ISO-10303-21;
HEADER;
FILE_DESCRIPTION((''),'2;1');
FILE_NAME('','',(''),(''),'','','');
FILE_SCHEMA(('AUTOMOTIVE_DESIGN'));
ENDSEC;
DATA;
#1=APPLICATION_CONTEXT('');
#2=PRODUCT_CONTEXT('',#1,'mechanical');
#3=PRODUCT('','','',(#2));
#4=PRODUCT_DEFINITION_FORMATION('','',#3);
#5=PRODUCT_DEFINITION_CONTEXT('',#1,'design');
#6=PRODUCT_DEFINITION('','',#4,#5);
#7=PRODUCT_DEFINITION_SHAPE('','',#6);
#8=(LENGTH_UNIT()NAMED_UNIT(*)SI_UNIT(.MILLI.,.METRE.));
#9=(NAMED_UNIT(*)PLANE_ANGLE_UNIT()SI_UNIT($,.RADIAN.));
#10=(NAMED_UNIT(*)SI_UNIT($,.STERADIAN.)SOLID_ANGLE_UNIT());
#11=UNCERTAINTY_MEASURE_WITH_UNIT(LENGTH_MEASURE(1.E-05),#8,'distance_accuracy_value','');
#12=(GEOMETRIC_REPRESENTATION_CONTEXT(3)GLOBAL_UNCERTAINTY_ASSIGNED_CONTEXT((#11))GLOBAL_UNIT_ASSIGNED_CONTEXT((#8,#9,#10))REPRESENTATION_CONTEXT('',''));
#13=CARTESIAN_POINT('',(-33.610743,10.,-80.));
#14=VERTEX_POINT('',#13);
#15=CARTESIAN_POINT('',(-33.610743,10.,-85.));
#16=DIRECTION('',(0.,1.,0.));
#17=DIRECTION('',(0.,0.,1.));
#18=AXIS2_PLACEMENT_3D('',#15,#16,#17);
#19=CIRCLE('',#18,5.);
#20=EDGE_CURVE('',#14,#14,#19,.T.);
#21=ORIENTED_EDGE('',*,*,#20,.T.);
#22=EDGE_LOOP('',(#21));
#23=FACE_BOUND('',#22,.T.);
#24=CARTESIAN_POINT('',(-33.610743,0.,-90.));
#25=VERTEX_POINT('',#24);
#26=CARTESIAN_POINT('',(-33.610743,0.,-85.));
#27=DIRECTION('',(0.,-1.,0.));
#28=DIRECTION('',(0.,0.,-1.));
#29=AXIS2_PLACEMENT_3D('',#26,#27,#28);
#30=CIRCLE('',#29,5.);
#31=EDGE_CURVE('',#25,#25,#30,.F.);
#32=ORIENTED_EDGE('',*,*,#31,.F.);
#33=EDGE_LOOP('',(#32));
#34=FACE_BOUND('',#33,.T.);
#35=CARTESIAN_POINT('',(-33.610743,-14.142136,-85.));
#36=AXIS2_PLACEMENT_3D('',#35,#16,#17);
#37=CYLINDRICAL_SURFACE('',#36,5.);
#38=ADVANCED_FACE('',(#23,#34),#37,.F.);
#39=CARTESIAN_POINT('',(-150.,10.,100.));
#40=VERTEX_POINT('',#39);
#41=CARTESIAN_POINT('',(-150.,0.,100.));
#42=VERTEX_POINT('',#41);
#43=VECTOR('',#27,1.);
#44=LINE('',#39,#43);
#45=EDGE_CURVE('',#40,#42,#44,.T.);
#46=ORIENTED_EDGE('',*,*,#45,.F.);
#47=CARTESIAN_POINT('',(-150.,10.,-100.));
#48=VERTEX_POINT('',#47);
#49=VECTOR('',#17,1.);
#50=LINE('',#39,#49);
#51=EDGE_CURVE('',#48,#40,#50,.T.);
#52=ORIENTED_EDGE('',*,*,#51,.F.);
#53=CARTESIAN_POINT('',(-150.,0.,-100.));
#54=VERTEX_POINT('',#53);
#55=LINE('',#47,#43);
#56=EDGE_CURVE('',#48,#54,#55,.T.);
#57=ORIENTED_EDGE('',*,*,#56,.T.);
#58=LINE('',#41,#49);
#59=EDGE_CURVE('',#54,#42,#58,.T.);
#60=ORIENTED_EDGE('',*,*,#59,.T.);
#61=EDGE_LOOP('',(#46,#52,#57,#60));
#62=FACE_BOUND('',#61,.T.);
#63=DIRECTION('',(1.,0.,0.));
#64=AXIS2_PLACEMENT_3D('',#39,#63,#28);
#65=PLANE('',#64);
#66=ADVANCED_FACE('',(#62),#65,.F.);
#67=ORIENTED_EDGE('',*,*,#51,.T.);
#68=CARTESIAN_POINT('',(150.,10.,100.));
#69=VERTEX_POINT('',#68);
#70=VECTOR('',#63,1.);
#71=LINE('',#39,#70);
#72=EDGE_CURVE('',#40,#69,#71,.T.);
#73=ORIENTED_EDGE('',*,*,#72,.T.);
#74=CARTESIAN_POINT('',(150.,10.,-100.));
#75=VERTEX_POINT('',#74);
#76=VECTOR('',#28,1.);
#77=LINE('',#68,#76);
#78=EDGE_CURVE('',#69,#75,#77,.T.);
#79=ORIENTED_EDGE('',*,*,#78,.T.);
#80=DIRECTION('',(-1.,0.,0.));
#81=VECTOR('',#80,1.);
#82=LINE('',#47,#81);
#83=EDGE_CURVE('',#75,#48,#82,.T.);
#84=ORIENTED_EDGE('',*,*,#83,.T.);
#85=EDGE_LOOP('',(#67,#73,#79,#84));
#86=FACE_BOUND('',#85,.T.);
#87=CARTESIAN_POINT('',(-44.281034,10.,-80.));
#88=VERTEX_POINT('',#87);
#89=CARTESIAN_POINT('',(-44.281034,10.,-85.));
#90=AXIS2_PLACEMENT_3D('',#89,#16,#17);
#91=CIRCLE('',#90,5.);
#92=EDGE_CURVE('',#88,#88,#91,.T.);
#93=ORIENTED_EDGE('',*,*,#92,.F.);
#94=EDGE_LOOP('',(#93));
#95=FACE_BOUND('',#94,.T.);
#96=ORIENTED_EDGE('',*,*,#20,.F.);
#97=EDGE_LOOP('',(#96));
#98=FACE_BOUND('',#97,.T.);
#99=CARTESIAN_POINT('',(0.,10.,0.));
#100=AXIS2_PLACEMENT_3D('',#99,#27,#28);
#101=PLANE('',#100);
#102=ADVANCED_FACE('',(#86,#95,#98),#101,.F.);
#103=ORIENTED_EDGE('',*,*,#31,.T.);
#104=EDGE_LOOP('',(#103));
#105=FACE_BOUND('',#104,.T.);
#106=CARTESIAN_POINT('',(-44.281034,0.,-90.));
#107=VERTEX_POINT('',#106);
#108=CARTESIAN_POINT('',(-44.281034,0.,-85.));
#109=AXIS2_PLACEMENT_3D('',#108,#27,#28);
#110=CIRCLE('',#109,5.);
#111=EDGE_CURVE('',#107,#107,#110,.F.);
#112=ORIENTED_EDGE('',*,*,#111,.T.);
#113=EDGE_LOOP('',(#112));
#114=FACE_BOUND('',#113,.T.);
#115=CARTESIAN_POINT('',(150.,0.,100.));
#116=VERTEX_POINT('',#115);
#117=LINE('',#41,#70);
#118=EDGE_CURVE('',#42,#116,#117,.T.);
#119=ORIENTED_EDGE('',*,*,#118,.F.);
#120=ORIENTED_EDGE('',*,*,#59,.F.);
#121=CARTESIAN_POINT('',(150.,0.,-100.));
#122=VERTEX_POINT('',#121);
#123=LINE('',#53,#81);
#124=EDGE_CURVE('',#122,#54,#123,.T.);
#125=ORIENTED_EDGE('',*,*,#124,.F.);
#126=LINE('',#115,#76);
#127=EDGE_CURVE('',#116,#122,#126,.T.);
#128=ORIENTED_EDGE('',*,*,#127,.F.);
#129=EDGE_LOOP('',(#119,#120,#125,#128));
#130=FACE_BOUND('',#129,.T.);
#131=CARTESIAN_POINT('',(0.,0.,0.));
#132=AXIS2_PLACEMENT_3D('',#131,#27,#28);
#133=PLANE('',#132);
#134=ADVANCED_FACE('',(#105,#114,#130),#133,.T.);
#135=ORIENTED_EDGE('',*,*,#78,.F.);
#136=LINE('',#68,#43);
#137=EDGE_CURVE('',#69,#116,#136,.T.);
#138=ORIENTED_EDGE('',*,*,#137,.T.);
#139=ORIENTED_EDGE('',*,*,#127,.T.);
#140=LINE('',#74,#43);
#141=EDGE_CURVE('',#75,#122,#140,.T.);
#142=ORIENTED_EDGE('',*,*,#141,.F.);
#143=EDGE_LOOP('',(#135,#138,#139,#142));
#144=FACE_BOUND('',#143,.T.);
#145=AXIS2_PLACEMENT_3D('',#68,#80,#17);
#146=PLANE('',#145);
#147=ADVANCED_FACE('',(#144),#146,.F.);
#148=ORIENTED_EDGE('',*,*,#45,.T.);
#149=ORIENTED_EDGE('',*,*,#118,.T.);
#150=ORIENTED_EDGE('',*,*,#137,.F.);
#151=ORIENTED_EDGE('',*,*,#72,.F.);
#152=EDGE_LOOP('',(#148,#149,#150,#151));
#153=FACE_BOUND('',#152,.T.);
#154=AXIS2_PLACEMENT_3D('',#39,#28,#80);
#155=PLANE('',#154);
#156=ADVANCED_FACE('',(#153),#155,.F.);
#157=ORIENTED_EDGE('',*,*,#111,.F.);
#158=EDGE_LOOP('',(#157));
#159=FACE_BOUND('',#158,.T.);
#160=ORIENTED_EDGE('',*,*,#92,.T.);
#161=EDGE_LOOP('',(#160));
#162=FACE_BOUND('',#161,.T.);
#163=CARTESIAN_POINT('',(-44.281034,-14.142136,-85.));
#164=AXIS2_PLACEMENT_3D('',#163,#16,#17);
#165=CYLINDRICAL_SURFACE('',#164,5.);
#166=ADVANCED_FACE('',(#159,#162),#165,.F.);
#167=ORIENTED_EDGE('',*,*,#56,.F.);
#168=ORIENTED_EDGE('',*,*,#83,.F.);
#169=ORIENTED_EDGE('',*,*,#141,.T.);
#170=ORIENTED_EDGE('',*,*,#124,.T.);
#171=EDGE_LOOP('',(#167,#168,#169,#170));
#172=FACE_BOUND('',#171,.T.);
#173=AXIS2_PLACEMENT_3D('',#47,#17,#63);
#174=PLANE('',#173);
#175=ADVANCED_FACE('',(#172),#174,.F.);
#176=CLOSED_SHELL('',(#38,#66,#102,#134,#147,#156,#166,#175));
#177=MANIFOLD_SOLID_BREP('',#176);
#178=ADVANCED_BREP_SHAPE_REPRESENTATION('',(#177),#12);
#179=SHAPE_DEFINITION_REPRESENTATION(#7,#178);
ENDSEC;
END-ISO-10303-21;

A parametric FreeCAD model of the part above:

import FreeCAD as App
import Part
import Sketcher
from FreeCAD import Vector


def add_polygon(sketch, points):
    """Adds a closed chain of lines whose ends are joined by coincident constraints."""
    first, n = sketch.GeometryCount, len(points)
    for a, b in zip(points, points[1:] + points[:1]):
        sketch.addGeometry(Part.LineSegment(App.Vector(*a, 0), App.Vector(*b, 0)), False)
    for i in range(n):
        sketch.addConstraint(Sketcher.Constraint("Coincident", first + i, 2, first + (i + 1) % n, 1))

doc = App.newDocument("Part")
body = doc.addObject("PartDesign::Body", "Body")

sketch1 = body.newObject("Sketcher::SketchObject", "Sketch")
sketch1.AttachmentSupport = (doc.getObject("XZ_Plane"), [""])
sketch1.MapMode = "FlatFace"
add_polygon(sketch1, [(-150, -100), (-150, 100), (150, 100), (150, -100)])
sketch1.addConstraint([
    Sketcher.Constraint("Vertical", 0),
    Sketcher.Constraint("Horizontal", 1),
    Sketcher.Constraint("Vertical", 2),
    Sketcher.Constraint("Horizontal", 3),
    Sketcher.Constraint("Symmetric", 0, 2, 2, 2, -1, 1),
    Sketcher.Constraint("DistanceX", 1, 1, 1, 2, 300.0),
    Sketcher.Constraint("DistanceY", 0, 1, 0, 2, 200.0),
])
pad1 = body.newObject("PartDesign::Pad", "Pad")
pad1.Profile = sketch1
pad1.Length = 10
pad1.Reversed = True

sketch2 = body.newObject("Sketcher::SketchObject", "Sketch001")
sketch2.AttachmentSupport = (doc.getObject("XZ_Plane"), [""])
sketch2.MapMode = "FlatFace"
sketch2.AttachmentOffset = App.Placement(Vector(0, 0, -10), App.Rotation())
sketch2.addGeometry([
    Part.Circle(Vector(-44.281034, -85, 0), Vector(0, 0, 1), 5),
    Part.Circle(Vector(-33.610743, -85, 0), Vector(0, 0, 1), 5),
], False)
sketch2.addConstraint([
    Sketcher.Constraint("Equal", 0, 1),
    Sketcher.Constraint("Horizontal", 0, 3, 1, 3),
    Sketcher.Constraint("Diameter", 0, 10.0),
    Sketcher.Constraint("DistanceY", 0, 3, -1, 1, 85.0),
    Sketcher.Constraint("DistanceX", 0, 3, 1, 3, 10.670291),
    Sketcher.Constraint("DistanceX", 0, 3, -1, 1, 44.281034),
])
pocket1 = body.newObject("PartDesign::Pocket", "Pocket")
pocket1.Profile = sketch2
pocket1.Length = 10
pocket1.Reversed = True

doc.recompute()
